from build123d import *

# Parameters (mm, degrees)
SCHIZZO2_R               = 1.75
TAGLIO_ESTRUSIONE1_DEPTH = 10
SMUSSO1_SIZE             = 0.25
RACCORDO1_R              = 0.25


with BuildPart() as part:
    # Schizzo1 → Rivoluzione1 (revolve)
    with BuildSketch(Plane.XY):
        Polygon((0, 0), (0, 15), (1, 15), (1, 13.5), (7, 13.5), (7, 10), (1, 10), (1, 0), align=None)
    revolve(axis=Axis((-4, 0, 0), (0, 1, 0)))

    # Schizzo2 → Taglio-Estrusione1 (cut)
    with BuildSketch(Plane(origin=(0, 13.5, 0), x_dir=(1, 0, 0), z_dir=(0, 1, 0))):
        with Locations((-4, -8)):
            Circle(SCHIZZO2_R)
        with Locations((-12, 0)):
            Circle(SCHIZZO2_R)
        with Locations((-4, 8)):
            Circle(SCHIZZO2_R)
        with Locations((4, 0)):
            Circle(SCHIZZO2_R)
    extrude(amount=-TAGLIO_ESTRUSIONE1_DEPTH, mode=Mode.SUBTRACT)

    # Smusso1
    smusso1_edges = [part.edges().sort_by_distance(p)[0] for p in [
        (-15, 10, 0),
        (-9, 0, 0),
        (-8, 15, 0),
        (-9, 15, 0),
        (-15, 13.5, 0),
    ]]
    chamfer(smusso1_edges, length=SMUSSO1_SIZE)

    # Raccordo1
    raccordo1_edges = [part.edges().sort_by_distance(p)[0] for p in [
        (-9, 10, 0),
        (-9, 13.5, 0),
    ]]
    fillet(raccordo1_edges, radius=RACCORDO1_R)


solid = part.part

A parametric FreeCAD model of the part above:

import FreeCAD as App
import Part
import Sketcher
from FreeCAD import Vector
Q = App.Units.Quantity


def edges_at(feature, points):
    """Names of the edges that pass closest to the given points."""
    edges = feature.Shape.Edges
    near = lambda p: min(range(len(edges)), key=lambda i: edges[i].distToShape(Part.Vertex(*p))[0])
    return sorted({f"Edge{near(p) + 1}" for p in points})


def add_polygon(sketch, points):
    """Adds a closed chain of lines whose ends are joined by coincident constraints."""
    first, n = sketch.GeometryCount, len(points)
    for a, b in zip(points, points[1:] + points[:1]):
        sketch.addGeometry(Part.LineSegment(App.Vector(*a, 0), App.Vector(*b, 0)), False)
    for i in range(n):
        sketch.addConstraint(Sketcher.Constraint("Coincident", first + i, 2, first + (i + 1) % n, 1))

doc = App.newDocument("Part")
params = doc.addObject("Spreadsheet::Sheet", "Params")
for row, (alias, value) in enumerate([
    ("sketch1_width", "1 mm"),
    ("sketch1_width2", "6 mm"),
    ("sketch1_height", "15 mm"),
    ("sketch1_height2", "10 mm"),
    ("sketch1_height3", "3.5 mm"),
    ("revolution_angle", "360 deg"),
    ("sketch2_diameter", "3.5 mm"),
    ("pocket1_length", "10 mm"),
    ("chamfer_size", "0.25 mm"),
    ("fillet_radius", "0.25 mm"),
], start=1):
    params.set(f"A{row}", alias)
    params.set(f"B{row}", "=" + value)
    params.setAlias(f"B{row}", alias)

body = doc.addObject("PartDesign::Body", "Body")

sketch1 = doc.addObject("Sketcher::SketchObject", "Sketch")
body.addObject(sketch1)
sketch1.AttachmentSupport = (doc.XY_Plane, [""])
sketch1.MapMode = "FlatFace"
add_polygon(sketch1, [(0, 15), (0, 0), (1, 0), (1, 10), (7, 10), (7, 13.5), (1, 13.5), (1, 15)])
sketch1.addGeometry(Part.LineSegment(Vector(-4, 0, 0), Vector(-4, 15, 0)), True)
sketch1.addConstraint(Sketcher.Constraint("Vertical", 0))
sketch1.addConstraint(Sketcher.Constraint("Horizontal", 1))
sketch1.addConstraint(Sketcher.Constraint("Vertical", 2))
sketch1.addConstraint(Sketcher.Constraint("Horizontal", 3))
sketch1.addConstraint(Sketcher.Constraint("Vertical", 4))
sketch1.addConstraint(Sketcher.Constraint("Horizontal", 5))
sketch1.addConstraint(Sketcher.Constraint("Vertical", 6))
sketch1.addConstraint(Sketcher.Constraint("Horizontal", 7))
sketch1.addConstraint(Sketcher.Constraint("Vertical", 8))
sketch1.addConstraint(Sketcher.Constraint("Coincident", 0, 2, -1, 1))
sketch1.addConstraint(Sketcher.Constraint("PointOnObject", 8, 1, -1))
sketch1.addConstraint(Sketcher.Constraint("Horizontal", 7, 2, 8, 2))
sketch1.addConstraint(Sketcher.Constraint("Vertical", 2, 2, 5, 2))
sketch1.addConstraint(Sketcher.Constraint("DistanceX", 1, 1, 1, 2, Q("1 mm")))
sketch1.addConstraint(Sketcher.Constraint("DistanceX", 3, 1, 3, 2, Q("6 mm")))
sketch1.addConstraint(Sketcher.Constraint("DistanceY", 0, 2, 0, 1, Q("15 mm")))
sketch1.addConstraint(Sketcher.Constraint("DistanceY", 2, 1, 2, 2, Q("10 mm")))
sketch1.addConstraint(Sketcher.Constraint("DistanceY", 4, 1, 4, 2, Q("3.5 mm")))
sketch1.addConstraint(Sketcher.Constraint("DistanceX", 8, 1, -1, 1, Q("4 mm")))
sketch1.setExpression("Constraints[21]", "Params.sketch1_width")
sketch1.setExpression("Constraints[22]", "Params.sketch1_width2")
sketch1.setExpression("Constraints[23]", "Params.sketch1_height")
sketch1.setExpression("Constraints[24]", "Params.sketch1_height2")
sketch1.setExpression("Constraints[25]", "Params.sketch1_height3")
revolution = doc.addObject("PartDesign::Revolution", "Revolution")
body.addObject(revolution)
revolution.Profile = sketch1
revolution.ReferenceAxis = (sketch1, ["Axis0"])
revolution.setExpression("Angle", "Params.revolution_angle")

sketch2 = doc.addObject("Sketcher::SketchObject", "Sketch001")
body.addObject(sketch2)
sketch2.AttachmentSupport = (doc.XZ_Plane, [""])
sketch2.MapMode = "FlatFace"
sketch2.AttachmentOffset = App.Placement(Vector(0, 0, -13.5), App.Rotation())
sketch2.addGeometry(Part.Circle(Vector(-4, 8, 0), Vector(0, 0, 1), 1.8), False)
sketch2.addGeometry(Part.Circle(Vector(-12, 0, 0), Vector(0, 0, 1), 1.8), False)
sketch2.addGeometry(Part.Circle(Vector(-4, -8, 0), Vector(0, 0, 1), 1.8), False)
sketch2.addGeometry(Part.Circle(Vector(4, 0, 0), Vector(0, 0, 1), 1.8), False)
sketch2.addConstraint(Sketcher.Constraint("Equal", 0, 1))
sketch2.addConstraint(Sketcher.Constraint("Equal", 1, 2))
sketch2.addConstraint(Sketcher.Constraint("Equal", 2, 3))
sketch2.addConstraint(Sketcher.Constraint("Symmetric", 0, 3, 2, 3, -1))
sketch2.addConstraint(Sketcher.Constraint("PointOnObject", 1, 3, -1))
sketch2.addConstraint(Sketcher.Constraint("PointOnObject", 3, 3, -1))
sketch2.addConstraint(Sketcher.Constraint("Diameter", 0, Q("3.5 mm")))
sketch2.addConstraint(Sketcher.Constraint("DistanceX", 0, 3, -1, 1, Q("4 mm")))
sketch2.addConstraint(Sketcher.Constraint("DistanceY", -1, 1, 0, 3, Q("8 mm")))
sketch2.addConstraint(Sketcher.Constraint("DistanceX", 1, 3, -1, 1, Q("12 mm")))
sketch2.addConstraint(Sketcher.Constraint("DistanceX", -1, 1, 3, 3, Q("4 mm")))
sketch2.setExpression("Constraints[6]", "Params.sketch2_diameter")
pocket1 = doc.addObject("PartDesign::Pocket", "Pocket")
body.addObject(pocket1)
pocket1.Profile = sketch2
pocket1.setExpression("Length", "Params.pocket1_length")
pocket1.Reversed = True
doc.recompute()

chamfer = doc.addObject("PartDesign::Chamfer", "Chamfer")
body.addObject(chamfer)
chamfer.Base = (pocket1, edges_at(pocket1, [
    (-15, 10, 0),
    (-9, 0, 0),
    (-8, 15, 0),
    (-9, 15, 0),
    (-15, 13.5, 0),
]))
chamfer.setExpression("Size", "Params.chamfer_size")
doc.recompute()

fillet = doc.addObject("PartDesign::Fillet", "Fillet")
body.addObject(fillet)
fillet.Base = (chamfer, edges_at(chamfer, [(-9, 10, 0), (-9, 13.5, 0)]))
fillet.setExpression("Radius", "Params.fillet_radius")

doc.recompute()
